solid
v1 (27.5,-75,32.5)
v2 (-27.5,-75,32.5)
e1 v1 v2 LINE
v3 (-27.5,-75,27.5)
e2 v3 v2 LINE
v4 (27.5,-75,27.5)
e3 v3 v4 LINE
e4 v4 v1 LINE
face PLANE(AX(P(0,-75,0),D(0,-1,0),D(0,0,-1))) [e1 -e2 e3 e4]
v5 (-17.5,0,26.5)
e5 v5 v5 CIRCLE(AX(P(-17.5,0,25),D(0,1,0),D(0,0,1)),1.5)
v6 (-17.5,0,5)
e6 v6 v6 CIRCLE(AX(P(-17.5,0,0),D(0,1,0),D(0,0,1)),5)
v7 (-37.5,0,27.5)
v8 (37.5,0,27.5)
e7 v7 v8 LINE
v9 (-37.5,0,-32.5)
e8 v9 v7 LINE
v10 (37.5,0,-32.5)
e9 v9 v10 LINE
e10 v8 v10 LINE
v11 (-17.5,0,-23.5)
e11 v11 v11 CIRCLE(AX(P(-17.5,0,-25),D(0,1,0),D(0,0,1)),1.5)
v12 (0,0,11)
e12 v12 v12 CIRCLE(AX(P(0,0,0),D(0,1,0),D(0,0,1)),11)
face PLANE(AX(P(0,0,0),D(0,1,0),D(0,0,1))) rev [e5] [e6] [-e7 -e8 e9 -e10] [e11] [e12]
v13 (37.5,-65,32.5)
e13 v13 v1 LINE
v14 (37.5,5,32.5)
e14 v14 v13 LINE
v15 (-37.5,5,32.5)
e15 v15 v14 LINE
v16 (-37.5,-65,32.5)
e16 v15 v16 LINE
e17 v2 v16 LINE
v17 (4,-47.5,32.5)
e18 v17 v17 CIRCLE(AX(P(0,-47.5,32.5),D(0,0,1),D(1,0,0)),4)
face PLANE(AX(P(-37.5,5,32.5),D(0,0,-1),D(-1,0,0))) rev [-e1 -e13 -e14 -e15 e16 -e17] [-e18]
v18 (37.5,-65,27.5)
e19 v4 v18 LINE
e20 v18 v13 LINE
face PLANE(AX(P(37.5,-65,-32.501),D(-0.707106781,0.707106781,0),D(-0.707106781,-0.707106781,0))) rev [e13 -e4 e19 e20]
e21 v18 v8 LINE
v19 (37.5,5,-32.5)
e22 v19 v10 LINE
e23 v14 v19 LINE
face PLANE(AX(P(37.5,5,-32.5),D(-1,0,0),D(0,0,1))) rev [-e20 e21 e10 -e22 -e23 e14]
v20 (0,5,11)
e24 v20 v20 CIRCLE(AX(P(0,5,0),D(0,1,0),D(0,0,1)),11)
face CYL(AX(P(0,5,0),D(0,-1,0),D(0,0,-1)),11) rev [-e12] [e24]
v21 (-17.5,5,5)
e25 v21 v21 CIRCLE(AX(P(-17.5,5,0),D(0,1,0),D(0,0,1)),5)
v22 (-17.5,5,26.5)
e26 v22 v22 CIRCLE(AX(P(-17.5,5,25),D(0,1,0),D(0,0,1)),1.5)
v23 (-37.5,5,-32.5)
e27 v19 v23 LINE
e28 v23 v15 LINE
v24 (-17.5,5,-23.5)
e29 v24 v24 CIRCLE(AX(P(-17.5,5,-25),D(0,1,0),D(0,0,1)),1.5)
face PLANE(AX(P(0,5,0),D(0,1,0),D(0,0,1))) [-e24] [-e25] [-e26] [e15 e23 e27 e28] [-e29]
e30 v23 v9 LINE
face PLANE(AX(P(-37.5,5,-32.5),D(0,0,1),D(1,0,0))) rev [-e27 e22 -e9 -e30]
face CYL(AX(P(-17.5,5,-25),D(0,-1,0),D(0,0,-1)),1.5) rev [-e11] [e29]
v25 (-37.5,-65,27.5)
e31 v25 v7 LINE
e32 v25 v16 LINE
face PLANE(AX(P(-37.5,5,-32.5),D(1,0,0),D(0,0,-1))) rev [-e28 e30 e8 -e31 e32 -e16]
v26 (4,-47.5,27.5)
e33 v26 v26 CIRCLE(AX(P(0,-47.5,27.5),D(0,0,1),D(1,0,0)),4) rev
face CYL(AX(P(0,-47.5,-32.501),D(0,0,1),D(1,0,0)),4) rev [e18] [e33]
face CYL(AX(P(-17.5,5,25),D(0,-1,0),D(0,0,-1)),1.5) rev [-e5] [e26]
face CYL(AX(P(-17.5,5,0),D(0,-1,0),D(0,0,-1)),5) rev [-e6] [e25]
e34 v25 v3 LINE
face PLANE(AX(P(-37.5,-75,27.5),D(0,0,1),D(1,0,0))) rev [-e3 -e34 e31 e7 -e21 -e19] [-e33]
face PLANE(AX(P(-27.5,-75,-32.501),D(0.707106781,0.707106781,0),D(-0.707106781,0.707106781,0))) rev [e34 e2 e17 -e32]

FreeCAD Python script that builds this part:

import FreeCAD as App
import Part
import Sketcher

V = App.Vector

doc = App.newDocument("Part")
params = doc.addObject("Spreadsheet::Sheet", "Params")
for row, (alias, value) in enumerate([
    ("sketch1_diameter", "3 mm"),
    ("sketch1_diameter2", "10 mm"),
    ("sketch1_diameter3", "22 mm"),
    ("sketch1_width", "75 mm"),
    ("sketch1_height", "65 mm"),
    ("pad1_length", "5 mm"),
    ("sketch2_width", "75 mm"),
    ("sketch2_height", "5 mm"),
    ("pad2_length", "75 mm"),
    ("sketch3_width", "10 mm"),
    ("sketch4_width", "10 mm"),
    ("sketch5_width", "10 mm"),
    ("sketch6_width", "10 mm"),
    ("sketch7_diameter", "8 mm"),
    ("sketch8_diameter", "5 mm"),
    ("sketch9_width", "75 mm"),
    ("sketch9_width2", "55 mm"),
    ("sketch9_height", "65 mm"),
], start=1):
    params.set(f"A{row}", alias)
    params.set(f"B{row}", "=" + value)
    params.setAlias(f"B{row}", alias)

body = doc.addObject("PartDesign::Body", "Body")

# Sketch on XZ plane
sketch1 = body.newObject("Sketcher::SketchObject", "Sketch")
sketch1.AttachmentSupport = (doc.getObject("XZ_Plane"), [""])
sketch1.MapMode = "FlatFace"
sketch1.addGeometry([
    Part.LineSegment(V(-37.5, -32.5, 0), V(-37.5, 32.5, 0)),  # 0
    Part.LineSegment(V(-37.5, 32.5, 0), V(37.5, 32.5, 0)),  # 1
    Part.LineSegment(V(37.5, 32.5, 0), V(37.5, -32.5, 0)),  # 2
    Part.LineSegment(V(37.5, -32.5, 0), V(-37.5, -32.5, 0)),  # 3
    Part.Circle(V(-17.5, 25, 0), V(0, 0, 1), 1.5),  # 4
    Part.Circle(V(-17.5, 0, 0), V(0, 0, 1), 5),  # 5
    Part.Circle(V(-17.5, -25, 0), V(0, 0, 1), 1.5),  # 6
    Part.Circle(V(0, 0, 0), V(0, 0, 1), 11),  # 7
], False)
sketch1.addConstraint([
    Sketcher.Constraint("Coincident", 0, 2, 1, 1),
    Sketcher.Constraint("Coincident", 1, 2, 2, 1),
    Sketcher.Constraint("Coincident", 2, 2, 3, 1),
    Sketcher.Constraint("Coincident", 3, 2, 0, 1),
    Sketcher.Constraint("Vertical", 0),
    Sketcher.Constraint("Horizontal", 1),
    Sketcher.Constraint("Vertical", 2),
    Sketcher.Constraint("Horizontal", 3),
    Sketcher.Constraint("Coincident", 7, 3, -1, 1),
    Sketcher.Constraint("Equal", 4, 6),
    Sketcher.Constraint("Symmetric", 0, 2, 2, 2, -1, 1),
    Sketcher.Constraint("Symmetric", 4, 3, 6, 3, -1),
    Sketcher.Constraint("PointOnObject", 5, 3, -1),
    Sketcher.Constraint("Vertical", 4, 3, 5, 3),
    Sketcher.Constraint("Diameter", 4, 3.0),
    Sketcher.Constraint("Diameter", 5, 10.0),
    Sketcher.Constraint("Diameter", 7, 22.0),
    Sketcher.Constraint("DistanceX", 1, 1, 1, 2, 75.0),
    Sketcher.Constraint("DistanceY", 0, 1, 0, 2, 65.0),
    Sketcher.Constraint("DistanceY", -1, 1, 4, 3, 25.0),
    Sketcher.Constraint("DistanceX", 0, 2, 4, 3, 20.0),
])
sketch1.setExpression("Constraints[14]", "Params.sketch1_diameter")
sketch1.setExpression("Constraints[15]", "Params.sketch1_diameter2")
sketch1.setExpression("Constraints[16]", "Params.sketch1_diameter3")
sketch1.setExpression("Constraints[17]", "Params.sketch1_width")
sketch1.setExpression("Constraints[18]", "Params.sketch1_height")
pad1 = body.newObject("PartDesign::Pad", "Pad")
pad1.Profile = sketch1
pad1.setExpression("Length", "Params.pad1_length")
pad1.Reversed = True

# Sketch on XZ plane
sketch2 = body.newObject("Sketcher::SketchObject", "Sketch001")
sketch2.AttachmentSupport = (doc.getObject("XZ_Plane"), [""])
sketch2.MapMode = "FlatFace"
sketch2.addGeometry([
    Part.LineSegment(V(-38, 32, 0), V(-38, 28, 0)),  # 0
    Part.LineSegment(V(-38, 28, 0), V(38, 28, 0)),  # 1
    Part.LineSegment(V(38, 28, 0), V(38, 32, 0)),  # 2
    Part.LineSegment(V(38, 32, 0), V(-38, 32, 0)),  # 3
    Part.LineSegment(V(-38, -28, 0), V(-38, -32, 0)),  # 4
    Part.LineSegment(V(-38, -32, 0), V(38, -32, 0)),  # 5
    Part.LineSegment(V(38, -32, 0), V(38, -28, 0)),  # 6
    Part.LineSegment(V(38, -28, 0), V(-38, -28, 0)),  # 7
], False)
sketch2.addConstraint([
    Sketcher.Constraint("Coincident", 0, 2, 1, 1),
    Sketcher.Constraint("Coincident", 1, 2, 2, 1),
    Sketcher.Constraint("Coincident", 2, 2, 3, 1),
    Sketcher.Constraint("Coincident", 3, 2, 0, 1),
    Sketcher.Constraint("Coincident", 4, 2, 5, 1),
    Sketcher.Constraint("Coincident", 5, 2, 6, 1),
    Sketcher.Constraint("Coincident", 6, 2, 7, 1),
    Sketcher.Constraint("Coincident", 7, 2, 4, 1),
    Sketcher.Constraint("Vertical", 0),
    Sketcher.Constraint("Horizontal", 1),
    Sketcher.Constraint("Vertical", 2),
    Sketcher.Constraint("Horizontal", 3),
    Sketcher.Constraint("Vertical", 4),
    Sketcher.Constraint("Horizontal", 5),
    Sketcher.Constraint("Vertical", 6),
    Sketcher.Constraint("Horizontal", 7),
    Sketcher.Constraint("Symmetric", 2, 2, 4, 2, -1, 1),
    Sketcher.Constraint("Symmetric", 0, 2, 6, 2, -1, 1),
    Sketcher.Constraint("Vertical", 3, 2, 4, 2),
    Sketcher.Constraint("DistanceX", 1, 1, 1, 2, 75.0),
    Sketcher.Constraint("DistanceY", 0, 2, 0, 1, 5.0),
    Sketcher.Constraint("DistanceY", 4, 2, 0, 2, 60.0),
])
sketch2.setExpression("Constraints[19]", "Params.sketch2_width")
sketch2.setExpression("Constraints[20]", "Params.sketch2_height")
pad2 = body.newObject("PartDesign::Pad", "Pad001")
pad2.Profile = sketch2
pad2.setExpression("Length", "Params.pad2_length")

# Sketch on XY plane
sketch3 = body.newObject("Sketcher::SketchObject", "Sketch002")
sketch3.AttachmentSupport = (doc.getObject("XY_Plane"), [""])
sketch3.MapMode = "FlatFace"
sketch3.AttachmentOffset = App.Placement(V(0, 0, 32.5), App.Rotation())
sketch3.addGeometry([
    Part.LineSegment(V(-38, -75, 0), V(-28, -75, 0)),
    Part.LineSegment(V(-28, -75, 0), V(-38, -65, 0)),
    Part.LineSegment(V(-38, -65, 0), V(-38, -75, 0)),
], False)
sketch3.addConstraint([
    Sketcher.Constraint("Coincident", 0, 2, 1, 1),
    Sketcher.Constraint("Coincident", 1, 2, 2, 1),
    Sketcher.Constraint("Coincident", 2, 2, 0, 1),
    Sketcher.Constraint("Horizontal", 0),
    Sketcher.Constraint("Vertical", 2),
    Sketcher.Constraint("Equal", 0, 2),
    Sketcher.Constraint("DistanceX", 0, 1, 0, 2, 10.0),
    Sketcher.Constraint("DistanceY", 0, 2, -1, 1, 75.0),
    Sketcher.Constraint("DistanceX", 0, 2, -1, 1, 27.5),
])
sketch3.setExpression("Constraints[6]", "Params.sketch3_width")
pocket1 = body.newObject("PartDesign::Pocket", "Pocket")
pocket1.Profile = sketch3
pocket1.Type = "UpToFirst"

# Sketch on XY plane
sketch4 = body.newObject("Sketcher::SketchObject", "Sketch003")
sketch4.AttachmentSupport = (doc.getObject("XY_Plane"), [""])
sketch4.MapMode = "FlatFace"
sketch4.AttachmentOffset = App.Placement(V(0, 0, 32.5), App.Rotation())
sketch4.addGeometry([
    Part.LineSegment(V(38, -75, 0), V(38, -65, 0)),
    Part.LineSegment(V(38, -65, 0), V(28, -75, 0)),
    Part.LineSegment(V(28, -75, 0), V(38, -75, 0)),
], False)
sketch4.addConstraint([
    Sketcher.Constraint("Coincident", 0, 2, 1, 1),
    Sketcher.Constraint("Coincident", 1, 2, 2, 1),
    Sketcher.Constraint("Coincident", 2, 2, 0, 1),
    Sketcher.Constraint("Vertical", 0),
    Sketcher.Constraint("Horizontal", 2),
    Sketcher.Constraint("Equal", 2, 0),
    Sketcher.Constraint("DistanceX", 2, 1, 2, 2, 10.0),
    Sketcher.Constraint("DistanceY", 0, 2, -1, 1, 65.0),
    Sketcher.Constraint("DistanceX", -1, 1, 0, 2, 37.5),
])
sketch4.setExpression("Constraints[6]", "Params.sketch4_width")
pocket2 = body.newObject("PartDesign::Pocket", "Pocket001")
pocket2.Profile = sketch4
pocket2.Type = "UpToFirst"

# Sketch on XY plane
sketch5 = body.newObject("Sketcher::SketchObject", "Sketch004")
sketch5.AttachmentSupport = (doc.getObject("XY_Plane"), [""])
sketch5.MapMode = "FlatFace"
sketch5.AttachmentOffset = App.Placement(V(0, 0, -27.5), App.Rotation())
sketch5.addGeometry([
    Part.LineSegment(V(-38, -65, 0), V(-38, -75, 0)),
    Part.LineSegment(V(-38, -75, 0), V(-28, -75, 0)),
    Part.LineSegment(V(-28, -75, 0), V(-38, -65, 0)),
], False)
sketch5.addConstraint([
    Sketcher.Constraint("Coincident", 0, 2, 1, 1),
    Sketcher.Constraint("Coincident", 1, 2, 2, 1),
    Sketcher.Constraint("Coincident", 2, 2, 0, 1),
    Sketcher.Constraint("Vertical", 0),
    Sketcher.Constraint("Horizontal", 1),
    Sketcher.Constraint("Equal", 1, 0),
    Sketcher.Constraint("DistanceX", 1, 1, 1, 2, 10.0),
    Sketcher.Constraint("DistanceY", 0, 2, -1, 1, 75.0),
    Sketcher.Constraint("DistanceX", 0, 2, -1, 1, 37.5),
])
sketch5.setExpression("Constraints[6]", "Params.sketch5_width")
pocket3 = body.newObject("PartDesign::Pocket", "Pocket002")
pocket3.Profile = sketch5
pocket3.Type = "UpToFirst"

# Sketch on XY plane
sketch6 = body.newObject("Sketcher::SketchObject", "Sketch005")
sketch6.AttachmentSupport = (doc.getObject("XY_Plane"), [""])
sketch6.MapMode = "FlatFace"
sketch6.AttachmentOffset = App.Placement(V(0, 0, -27.5), App.Rotation())
sketch6.addGeometry([
    Part.LineSegment(V(38, -65, 0), V(28, -75, 0)),
    Part.LineSegment(V(28, -75, 0), V(38, -75, 0)),
    Part.LineSegment(V(38, -75, 0), V(38, -65, 0)),
], False)
sketch6.addConstraint([
    Sketcher.Constraint("Coincident", 0, 2, 1, 1),
    Sketcher.Constraint("Coincident", 1, 2, 2, 1),
    Sketcher.Constraint("Coincident", 2, 2, 0, 1),
    Sketcher.Constraint("Horizontal", 1),
    Sketcher.Constraint("Vertical", 2),
    Sketcher.Constraint("Equal", 1, 2),
    Sketcher.Constraint("DistanceX", 1, 1, 1, 2, 10.0),
    Sketcher.Constraint("DistanceY", 0, 2, -1, 1, 75.0),
    Sketcher.Constraint("DistanceX", -1, 1, 0, 2, 27.5),
])
sketch6.setExpression("Constraints[6]", "Params.sketch6_width")
pocket4 = body.newObject("PartDesign::Pocket", "Pocket003")
pocket4.Profile = sketch6
pocket4.Type = "UpToFirst"

# Sketch on XY plane
sketch7 = body.newObject("Sketcher::SketchObject", "Sketch006")
sketch7.AttachmentSupport = (doc.getObject("XY_Plane"), [""])
sketch7.MapMode = "FlatFace"
sketch7.AttachmentOffset = App.Placement(V(0, 0, 32.5), App.Rotation())
sketch7.addGeometry(Part.Circle(V(0, -47.5, 0), V(0, 0, 1), 4), False)
sketch7.addConstraint([
    Sketcher.Constraint("PointOnObject", 0, 3, -2),
    Sketcher.Constraint("Diameter", 0, 8.0),
    Sketcher.Constraint("DistanceY", 0, 3, -1, 1, 47.5),
])
sketch7.setExpression("Constraints[1]", "Params.sketch7_diameter")
pocket5 = body.newObject("PartDesign::Pocket", "Pocket004")
pocket5.Profile = sketch7
pocket5.Type = "UpToFirst"

# Sketch on XY plane
sketch8 = body.newObject("Sketcher::SketchObject", "Sketch007")
sketch8.AttachmentSupport = (doc.getObject("XY_Plane"), [""])
sketch8.MapMode = "FlatFace"
sketch8.AttachmentOffset = App.Placement(V(0, 0, -32.5), App.Rotation())
sketch8.addGeometry(Part.Circle(V(0, -47.5, 0), V(0, 0, 1), 2.5), False)
sketch8.addConstraint([
    Sketcher.Constraint("PointOnObject", 0, 3, -2),
    Sketcher.Constraint("Diameter", 0, 5.0),
    Sketcher.Constraint("DistanceY", 0, 3, -1, 1, 47.5),
])
sketch8.setExpression("Constraints[1]", "Params.sketch8_diameter")
pocket6 = body.newObject("PartDesign::Pocket", "Pocket005")
pocket6.Profile = sketch8
pocket6.Type = "UpToFirst"
pocket6.Reversed = True

# Sketch on XY plane
sketch9 = body.newObject("Sketcher::SketchObject", "Sketch008")
sketch9.AttachmentSupport = (doc.getObject("XY_Plane"), [""])
sketch9.MapMode = "FlatFace"
sketch9.AttachmentOffset = App.Placement(V(0, 0, -27.5), App.Rotation())
sketch9.addGeometry([
    Part.LineSegment(V(38, 0, 0), V(-38, 0, 0)),  # 0
    Part.LineSegment(V(-38, 0, 0), V(-38, -65, 0)),  # 1
    Part.LineSegment(V(-38, -65, 0), V(-28, -75, 0)),  # 2
    Part.LineSegment(V(-28, -75, 0), V(28, -75, 0)),  # 3
    Part.LineSegment(V(28, -75, 0), V(38, -65, 0)),  # 4
    Part.LineSegment(V(38, -65, 0), V(38, 0, 0)),  # 5
], False)
sketch9.addConstraint([
    Sketcher.Constraint("Coincident", 0, 2, 1, 1),
    Sketcher.Constraint("Coincident", 1, 2, 2, 1),
    Sketcher.Constraint("Coincident", 2, 2, 3, 1),
    Sketcher.Constraint("Coincident", 3, 2, 4, 1),
    Sketcher.Constraint("Coincident", 4, 2, 5, 1),
    Sketcher.Constraint("Coincident", 5, 2, 0, 1),
    Sketcher.Constraint("Horizontal", 0),
    Sketcher.Constraint("Vertical", 1),
    Sketcher.Constraint("Horizontal", 3),
    Sketcher.Constraint("Vertical", 5),
    Sketcher.Constraint("Symmetric", 0, 2, 5, 2, -1, 1),
    Sketcher.Constraint("Perpendicular", 2, 4),
    Sketcher.Constraint("Horizontal", 1, 2, 4, 2),
    Sketcher.Constraint("Equal", 2, 4),
    Sketcher.Constraint("DistanceX", 0, 2, 0, 1, 75.0),
    Sketcher.Constraint("DistanceX", 3, 1, 3, 2, 55.0),
    Sketcher.Constraint("DistanceY", 1, 2, 1, 1, 65.0),
])
sketch9.setExpression("Constraints[14]", "Params.sketch9_width")
sketch9.setExpression("Constraints[15]", "Params.sketch9_width2")
sketch9.setExpression("Constraints[16]", "Params.sketch9_height")
pocket7 = body.newObject("PartDesign::Pocket", "Pocket006")
pocket7.Profile = sketch9
pocket7.Type = "UpToFirst"

doc.recompute()
